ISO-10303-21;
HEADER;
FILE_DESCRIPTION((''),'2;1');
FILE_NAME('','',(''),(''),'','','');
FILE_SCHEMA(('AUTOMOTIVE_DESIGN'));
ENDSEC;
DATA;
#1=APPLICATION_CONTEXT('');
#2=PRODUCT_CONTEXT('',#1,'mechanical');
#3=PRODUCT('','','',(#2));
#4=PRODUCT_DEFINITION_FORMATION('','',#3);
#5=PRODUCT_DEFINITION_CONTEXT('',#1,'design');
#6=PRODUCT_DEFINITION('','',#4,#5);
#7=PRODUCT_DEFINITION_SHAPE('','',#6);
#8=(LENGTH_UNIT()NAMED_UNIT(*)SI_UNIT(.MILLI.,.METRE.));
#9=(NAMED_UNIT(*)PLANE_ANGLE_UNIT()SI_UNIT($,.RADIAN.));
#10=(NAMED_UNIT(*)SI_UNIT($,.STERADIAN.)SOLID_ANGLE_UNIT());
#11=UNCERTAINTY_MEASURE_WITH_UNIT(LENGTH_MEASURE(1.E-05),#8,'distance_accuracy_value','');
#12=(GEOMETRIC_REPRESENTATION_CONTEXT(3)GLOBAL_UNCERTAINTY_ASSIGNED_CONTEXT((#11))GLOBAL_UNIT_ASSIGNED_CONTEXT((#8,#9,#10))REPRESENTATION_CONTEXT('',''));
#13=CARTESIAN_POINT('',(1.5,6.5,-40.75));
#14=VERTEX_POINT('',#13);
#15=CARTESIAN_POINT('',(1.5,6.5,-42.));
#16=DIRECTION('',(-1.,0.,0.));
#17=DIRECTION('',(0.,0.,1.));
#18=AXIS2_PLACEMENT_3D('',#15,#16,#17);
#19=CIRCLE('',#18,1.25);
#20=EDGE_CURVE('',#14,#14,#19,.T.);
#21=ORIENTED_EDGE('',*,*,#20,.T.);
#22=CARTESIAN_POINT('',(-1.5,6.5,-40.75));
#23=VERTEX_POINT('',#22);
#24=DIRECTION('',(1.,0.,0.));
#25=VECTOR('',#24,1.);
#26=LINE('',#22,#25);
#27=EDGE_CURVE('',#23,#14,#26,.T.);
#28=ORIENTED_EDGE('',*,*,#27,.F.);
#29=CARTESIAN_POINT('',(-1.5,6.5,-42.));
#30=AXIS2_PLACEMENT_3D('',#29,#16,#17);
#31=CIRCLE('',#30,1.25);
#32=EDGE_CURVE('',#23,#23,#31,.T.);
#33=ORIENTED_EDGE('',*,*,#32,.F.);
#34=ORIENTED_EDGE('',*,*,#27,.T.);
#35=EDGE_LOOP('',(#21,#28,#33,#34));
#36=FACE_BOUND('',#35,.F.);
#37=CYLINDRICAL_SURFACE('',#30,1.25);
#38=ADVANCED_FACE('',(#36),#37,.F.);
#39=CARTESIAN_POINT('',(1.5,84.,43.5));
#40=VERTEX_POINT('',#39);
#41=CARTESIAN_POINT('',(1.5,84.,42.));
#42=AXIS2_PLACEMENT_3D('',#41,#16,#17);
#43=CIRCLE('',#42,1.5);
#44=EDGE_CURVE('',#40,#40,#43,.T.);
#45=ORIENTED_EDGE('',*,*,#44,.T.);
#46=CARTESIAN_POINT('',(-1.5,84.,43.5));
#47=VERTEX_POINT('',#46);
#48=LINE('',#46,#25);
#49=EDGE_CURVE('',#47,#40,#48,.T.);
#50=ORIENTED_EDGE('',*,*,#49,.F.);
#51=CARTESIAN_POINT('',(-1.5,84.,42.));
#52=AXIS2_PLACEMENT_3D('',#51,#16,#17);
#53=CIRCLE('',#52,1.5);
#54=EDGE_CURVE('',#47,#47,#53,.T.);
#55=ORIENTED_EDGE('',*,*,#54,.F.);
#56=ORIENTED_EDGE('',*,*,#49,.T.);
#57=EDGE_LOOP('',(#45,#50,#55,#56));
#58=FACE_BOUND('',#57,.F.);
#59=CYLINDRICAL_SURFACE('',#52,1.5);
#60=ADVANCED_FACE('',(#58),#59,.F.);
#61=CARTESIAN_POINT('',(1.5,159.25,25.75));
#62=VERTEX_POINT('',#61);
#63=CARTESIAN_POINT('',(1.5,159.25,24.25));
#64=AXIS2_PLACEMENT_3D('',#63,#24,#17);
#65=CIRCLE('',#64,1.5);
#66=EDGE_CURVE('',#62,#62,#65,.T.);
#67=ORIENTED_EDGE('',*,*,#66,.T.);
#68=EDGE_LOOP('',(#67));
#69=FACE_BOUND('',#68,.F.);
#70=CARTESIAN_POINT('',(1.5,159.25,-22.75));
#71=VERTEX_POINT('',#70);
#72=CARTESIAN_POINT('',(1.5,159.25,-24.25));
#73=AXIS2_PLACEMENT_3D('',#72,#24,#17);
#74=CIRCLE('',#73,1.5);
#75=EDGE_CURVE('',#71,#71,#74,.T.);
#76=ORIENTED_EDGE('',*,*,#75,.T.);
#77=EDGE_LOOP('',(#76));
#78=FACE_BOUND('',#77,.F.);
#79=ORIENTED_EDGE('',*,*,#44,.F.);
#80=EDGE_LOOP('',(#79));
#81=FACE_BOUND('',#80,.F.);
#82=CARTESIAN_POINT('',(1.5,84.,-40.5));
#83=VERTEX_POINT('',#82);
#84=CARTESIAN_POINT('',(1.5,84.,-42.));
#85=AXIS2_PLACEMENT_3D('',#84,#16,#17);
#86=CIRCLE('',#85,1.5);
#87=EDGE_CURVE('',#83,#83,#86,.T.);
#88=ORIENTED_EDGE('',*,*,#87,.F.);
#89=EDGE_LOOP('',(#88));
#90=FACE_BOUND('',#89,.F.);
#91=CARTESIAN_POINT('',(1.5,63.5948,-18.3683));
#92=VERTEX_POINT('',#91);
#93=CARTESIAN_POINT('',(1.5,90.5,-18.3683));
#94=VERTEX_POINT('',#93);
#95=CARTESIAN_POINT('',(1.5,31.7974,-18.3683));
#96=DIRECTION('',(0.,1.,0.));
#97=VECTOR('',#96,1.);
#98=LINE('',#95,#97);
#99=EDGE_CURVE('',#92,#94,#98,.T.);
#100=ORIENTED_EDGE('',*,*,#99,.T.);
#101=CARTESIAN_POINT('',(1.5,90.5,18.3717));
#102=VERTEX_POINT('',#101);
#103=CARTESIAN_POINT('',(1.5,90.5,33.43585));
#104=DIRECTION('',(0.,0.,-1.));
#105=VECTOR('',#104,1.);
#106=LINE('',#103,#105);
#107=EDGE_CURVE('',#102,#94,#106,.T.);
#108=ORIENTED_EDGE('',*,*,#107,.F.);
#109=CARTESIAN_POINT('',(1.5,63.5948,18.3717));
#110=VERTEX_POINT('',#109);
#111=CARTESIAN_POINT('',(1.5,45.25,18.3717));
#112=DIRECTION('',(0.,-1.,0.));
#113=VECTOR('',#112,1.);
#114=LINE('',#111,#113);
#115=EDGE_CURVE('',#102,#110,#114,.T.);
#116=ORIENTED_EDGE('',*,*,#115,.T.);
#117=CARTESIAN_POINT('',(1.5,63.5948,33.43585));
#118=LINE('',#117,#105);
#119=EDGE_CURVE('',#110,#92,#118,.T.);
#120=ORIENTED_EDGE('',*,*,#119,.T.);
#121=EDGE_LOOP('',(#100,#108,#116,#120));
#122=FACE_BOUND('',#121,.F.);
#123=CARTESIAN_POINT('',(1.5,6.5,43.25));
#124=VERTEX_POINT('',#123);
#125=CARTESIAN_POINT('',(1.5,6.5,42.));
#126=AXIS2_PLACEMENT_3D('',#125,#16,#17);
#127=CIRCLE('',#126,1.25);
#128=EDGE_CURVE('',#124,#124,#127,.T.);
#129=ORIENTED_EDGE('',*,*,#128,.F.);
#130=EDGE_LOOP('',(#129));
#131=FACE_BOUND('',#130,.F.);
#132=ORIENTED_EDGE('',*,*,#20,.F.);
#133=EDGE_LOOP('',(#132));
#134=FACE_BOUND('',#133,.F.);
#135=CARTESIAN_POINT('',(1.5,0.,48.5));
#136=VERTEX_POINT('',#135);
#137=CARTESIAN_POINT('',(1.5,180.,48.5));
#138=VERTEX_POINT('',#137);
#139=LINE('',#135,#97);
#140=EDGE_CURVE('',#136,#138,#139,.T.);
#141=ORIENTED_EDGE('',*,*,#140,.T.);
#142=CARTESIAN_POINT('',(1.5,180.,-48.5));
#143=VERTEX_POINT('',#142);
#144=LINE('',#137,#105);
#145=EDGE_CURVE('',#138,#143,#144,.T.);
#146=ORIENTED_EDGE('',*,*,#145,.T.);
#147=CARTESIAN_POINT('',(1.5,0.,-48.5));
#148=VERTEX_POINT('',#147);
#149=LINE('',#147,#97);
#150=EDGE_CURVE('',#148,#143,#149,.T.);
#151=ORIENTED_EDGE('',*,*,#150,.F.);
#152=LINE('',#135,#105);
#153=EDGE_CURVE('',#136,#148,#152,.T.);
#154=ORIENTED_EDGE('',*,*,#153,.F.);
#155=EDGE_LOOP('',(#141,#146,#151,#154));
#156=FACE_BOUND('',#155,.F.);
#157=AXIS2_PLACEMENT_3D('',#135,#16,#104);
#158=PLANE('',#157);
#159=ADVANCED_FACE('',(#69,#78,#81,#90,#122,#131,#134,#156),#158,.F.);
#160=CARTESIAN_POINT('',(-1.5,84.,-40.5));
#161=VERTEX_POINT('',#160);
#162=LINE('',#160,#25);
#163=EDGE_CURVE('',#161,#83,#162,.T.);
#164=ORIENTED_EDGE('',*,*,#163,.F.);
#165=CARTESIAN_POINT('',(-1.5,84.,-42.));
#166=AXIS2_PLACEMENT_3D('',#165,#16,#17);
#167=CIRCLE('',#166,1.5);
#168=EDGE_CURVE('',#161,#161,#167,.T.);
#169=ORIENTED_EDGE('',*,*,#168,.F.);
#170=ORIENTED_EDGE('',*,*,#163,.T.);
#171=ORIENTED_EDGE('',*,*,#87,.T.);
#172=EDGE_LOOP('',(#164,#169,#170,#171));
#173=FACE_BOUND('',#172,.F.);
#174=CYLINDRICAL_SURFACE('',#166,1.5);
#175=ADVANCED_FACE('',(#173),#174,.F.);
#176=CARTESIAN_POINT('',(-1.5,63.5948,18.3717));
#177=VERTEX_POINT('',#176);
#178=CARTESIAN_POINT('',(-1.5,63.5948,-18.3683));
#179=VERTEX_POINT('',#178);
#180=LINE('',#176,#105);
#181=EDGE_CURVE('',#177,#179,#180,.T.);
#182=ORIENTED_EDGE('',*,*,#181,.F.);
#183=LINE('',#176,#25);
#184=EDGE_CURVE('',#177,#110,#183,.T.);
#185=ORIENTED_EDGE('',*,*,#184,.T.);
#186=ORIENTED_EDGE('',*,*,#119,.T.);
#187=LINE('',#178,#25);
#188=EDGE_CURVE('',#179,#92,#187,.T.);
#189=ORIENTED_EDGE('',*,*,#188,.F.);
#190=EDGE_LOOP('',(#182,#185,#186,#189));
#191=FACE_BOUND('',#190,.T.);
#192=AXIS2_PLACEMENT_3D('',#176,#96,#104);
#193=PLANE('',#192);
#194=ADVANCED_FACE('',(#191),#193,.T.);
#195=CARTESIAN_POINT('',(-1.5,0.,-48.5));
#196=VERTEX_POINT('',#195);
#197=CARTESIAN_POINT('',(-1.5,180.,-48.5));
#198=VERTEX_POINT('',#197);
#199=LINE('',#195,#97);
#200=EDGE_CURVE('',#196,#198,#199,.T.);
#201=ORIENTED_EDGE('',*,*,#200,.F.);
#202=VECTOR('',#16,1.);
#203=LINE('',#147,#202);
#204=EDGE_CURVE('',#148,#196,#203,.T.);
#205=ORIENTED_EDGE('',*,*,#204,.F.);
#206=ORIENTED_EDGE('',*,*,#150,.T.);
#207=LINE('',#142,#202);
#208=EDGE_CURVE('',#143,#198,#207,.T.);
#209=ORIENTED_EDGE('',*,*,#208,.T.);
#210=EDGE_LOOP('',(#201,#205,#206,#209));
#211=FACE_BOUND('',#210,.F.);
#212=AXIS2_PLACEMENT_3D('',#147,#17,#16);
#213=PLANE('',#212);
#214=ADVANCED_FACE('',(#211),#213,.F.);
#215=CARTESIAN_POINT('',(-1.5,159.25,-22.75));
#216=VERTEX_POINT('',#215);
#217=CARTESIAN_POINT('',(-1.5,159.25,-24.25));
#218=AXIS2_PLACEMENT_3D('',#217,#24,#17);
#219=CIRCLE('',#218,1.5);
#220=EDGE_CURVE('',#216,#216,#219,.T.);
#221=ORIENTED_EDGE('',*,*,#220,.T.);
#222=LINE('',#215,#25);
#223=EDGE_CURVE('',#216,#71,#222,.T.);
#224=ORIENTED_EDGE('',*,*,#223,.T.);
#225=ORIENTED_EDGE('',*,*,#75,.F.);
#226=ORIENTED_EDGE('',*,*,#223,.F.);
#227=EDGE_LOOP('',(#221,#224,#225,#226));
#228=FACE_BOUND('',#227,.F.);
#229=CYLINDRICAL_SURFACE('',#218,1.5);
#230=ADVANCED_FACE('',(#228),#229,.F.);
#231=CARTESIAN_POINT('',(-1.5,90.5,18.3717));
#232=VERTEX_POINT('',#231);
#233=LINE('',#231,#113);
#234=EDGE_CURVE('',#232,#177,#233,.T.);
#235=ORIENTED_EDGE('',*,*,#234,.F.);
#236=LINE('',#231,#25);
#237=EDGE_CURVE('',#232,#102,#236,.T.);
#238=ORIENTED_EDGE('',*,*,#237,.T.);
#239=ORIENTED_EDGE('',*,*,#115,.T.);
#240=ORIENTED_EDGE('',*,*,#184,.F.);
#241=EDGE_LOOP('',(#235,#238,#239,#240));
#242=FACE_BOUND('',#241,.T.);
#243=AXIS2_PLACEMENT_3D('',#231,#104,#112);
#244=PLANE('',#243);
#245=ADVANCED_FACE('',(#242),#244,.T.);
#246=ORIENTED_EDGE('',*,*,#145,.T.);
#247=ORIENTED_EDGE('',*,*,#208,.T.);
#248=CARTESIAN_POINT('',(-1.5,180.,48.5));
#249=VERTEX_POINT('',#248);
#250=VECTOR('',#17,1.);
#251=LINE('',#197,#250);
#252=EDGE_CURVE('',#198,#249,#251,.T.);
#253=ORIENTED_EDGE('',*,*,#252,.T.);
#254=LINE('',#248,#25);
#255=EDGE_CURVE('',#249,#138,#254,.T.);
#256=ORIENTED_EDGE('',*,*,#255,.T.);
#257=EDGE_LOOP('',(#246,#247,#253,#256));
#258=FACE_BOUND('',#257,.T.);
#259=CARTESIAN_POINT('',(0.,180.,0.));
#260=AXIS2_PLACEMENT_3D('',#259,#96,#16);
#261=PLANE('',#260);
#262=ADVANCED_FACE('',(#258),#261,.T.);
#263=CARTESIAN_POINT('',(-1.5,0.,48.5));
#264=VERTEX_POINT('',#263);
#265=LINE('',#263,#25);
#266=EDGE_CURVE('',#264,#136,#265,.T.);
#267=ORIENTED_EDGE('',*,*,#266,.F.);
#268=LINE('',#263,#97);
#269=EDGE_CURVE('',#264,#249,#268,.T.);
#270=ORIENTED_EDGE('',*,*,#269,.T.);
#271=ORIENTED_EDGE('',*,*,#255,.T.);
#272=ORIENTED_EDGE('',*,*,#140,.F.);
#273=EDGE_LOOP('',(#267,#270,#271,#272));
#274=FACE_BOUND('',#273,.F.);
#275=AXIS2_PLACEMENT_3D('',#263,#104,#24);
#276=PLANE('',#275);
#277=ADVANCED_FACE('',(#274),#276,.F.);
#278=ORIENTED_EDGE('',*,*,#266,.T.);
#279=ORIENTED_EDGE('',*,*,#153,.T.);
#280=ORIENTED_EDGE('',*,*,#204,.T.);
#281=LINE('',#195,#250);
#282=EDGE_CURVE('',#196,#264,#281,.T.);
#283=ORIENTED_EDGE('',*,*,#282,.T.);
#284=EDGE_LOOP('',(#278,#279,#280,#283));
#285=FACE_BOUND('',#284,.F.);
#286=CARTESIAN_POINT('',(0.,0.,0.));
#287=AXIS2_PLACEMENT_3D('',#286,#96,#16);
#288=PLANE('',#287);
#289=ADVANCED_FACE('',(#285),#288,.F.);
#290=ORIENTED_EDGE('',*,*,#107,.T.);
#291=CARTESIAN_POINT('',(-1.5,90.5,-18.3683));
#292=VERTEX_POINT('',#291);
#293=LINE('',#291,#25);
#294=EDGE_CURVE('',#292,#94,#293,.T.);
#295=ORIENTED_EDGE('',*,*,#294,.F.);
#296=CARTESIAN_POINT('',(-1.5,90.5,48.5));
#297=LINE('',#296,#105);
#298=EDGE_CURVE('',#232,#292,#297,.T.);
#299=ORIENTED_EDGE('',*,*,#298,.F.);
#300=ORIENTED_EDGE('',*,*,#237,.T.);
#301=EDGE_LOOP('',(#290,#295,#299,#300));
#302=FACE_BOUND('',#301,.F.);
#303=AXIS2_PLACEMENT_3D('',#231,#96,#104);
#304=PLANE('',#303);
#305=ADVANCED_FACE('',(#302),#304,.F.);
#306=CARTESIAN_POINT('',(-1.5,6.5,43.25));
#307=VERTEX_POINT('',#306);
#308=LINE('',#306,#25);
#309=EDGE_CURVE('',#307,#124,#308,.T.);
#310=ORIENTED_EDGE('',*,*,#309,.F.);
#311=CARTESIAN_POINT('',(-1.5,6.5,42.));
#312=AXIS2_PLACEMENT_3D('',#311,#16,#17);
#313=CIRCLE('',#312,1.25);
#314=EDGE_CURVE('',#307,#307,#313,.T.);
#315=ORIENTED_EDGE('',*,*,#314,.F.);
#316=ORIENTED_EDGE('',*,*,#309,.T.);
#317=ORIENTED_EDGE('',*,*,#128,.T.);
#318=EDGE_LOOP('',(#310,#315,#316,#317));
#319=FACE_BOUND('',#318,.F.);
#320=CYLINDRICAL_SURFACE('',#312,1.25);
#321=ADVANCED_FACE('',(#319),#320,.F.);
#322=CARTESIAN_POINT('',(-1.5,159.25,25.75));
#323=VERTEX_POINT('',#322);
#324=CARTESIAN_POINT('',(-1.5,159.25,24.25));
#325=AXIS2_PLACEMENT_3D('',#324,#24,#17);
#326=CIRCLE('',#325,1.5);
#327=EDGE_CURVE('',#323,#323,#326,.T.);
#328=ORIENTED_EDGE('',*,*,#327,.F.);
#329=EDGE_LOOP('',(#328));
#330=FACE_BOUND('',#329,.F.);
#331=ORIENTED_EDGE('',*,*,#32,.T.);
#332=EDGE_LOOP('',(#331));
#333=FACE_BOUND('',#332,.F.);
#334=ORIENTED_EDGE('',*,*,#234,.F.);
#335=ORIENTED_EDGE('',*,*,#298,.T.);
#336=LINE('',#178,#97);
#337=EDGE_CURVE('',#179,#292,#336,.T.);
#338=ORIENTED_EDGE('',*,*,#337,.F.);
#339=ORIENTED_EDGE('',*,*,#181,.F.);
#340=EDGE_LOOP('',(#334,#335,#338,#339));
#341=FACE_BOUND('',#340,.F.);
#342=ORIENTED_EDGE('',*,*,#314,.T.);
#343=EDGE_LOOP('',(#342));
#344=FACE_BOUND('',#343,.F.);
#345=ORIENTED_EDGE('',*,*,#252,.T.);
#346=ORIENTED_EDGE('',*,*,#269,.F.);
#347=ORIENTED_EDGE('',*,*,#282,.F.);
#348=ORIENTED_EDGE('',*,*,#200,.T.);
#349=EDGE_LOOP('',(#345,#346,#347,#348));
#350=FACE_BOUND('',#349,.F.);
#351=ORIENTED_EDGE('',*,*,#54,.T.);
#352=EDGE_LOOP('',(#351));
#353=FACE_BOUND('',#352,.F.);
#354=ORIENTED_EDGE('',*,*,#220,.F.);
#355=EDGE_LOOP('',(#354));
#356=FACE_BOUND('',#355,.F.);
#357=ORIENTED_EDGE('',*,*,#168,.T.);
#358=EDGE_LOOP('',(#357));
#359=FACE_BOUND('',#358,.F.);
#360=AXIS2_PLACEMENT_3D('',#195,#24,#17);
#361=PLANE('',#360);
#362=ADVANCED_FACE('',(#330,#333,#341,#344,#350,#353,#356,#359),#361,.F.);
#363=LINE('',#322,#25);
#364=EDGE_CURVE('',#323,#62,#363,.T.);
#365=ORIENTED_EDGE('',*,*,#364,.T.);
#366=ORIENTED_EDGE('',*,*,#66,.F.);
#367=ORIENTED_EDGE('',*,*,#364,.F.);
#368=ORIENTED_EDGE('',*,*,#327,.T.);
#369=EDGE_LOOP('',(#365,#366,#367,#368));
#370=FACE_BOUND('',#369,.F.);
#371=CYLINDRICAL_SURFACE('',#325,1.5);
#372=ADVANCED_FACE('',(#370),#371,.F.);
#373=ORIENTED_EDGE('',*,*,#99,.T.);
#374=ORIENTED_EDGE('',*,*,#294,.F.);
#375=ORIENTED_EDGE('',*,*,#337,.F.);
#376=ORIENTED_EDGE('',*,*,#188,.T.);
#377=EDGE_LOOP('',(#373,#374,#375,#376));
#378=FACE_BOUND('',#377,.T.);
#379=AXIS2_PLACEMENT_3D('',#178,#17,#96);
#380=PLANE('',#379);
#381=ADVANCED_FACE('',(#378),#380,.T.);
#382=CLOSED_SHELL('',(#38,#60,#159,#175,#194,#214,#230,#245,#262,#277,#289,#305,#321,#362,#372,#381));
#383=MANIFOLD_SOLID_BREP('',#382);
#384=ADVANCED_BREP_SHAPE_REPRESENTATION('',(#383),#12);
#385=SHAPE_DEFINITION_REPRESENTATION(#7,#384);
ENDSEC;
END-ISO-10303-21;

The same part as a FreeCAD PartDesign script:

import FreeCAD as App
import Part
import Sketcher
Q = App.Units.Quantity


def add_polygon(sketch, points):
    """Adds a closed chain of lines whose ends are joined by coincident constraints."""
    first, n = sketch.GeometryCount, len(points)
    for a, b in zip(points, points[1:] + points[:1]):
        sketch.addGeometry(Part.LineSegment(App.Vector(*a, 0), App.Vector(*b, 0)), False)
    for i in range(n):
        sketch.addConstraint(Sketcher.Constraint("Coincident", first + i, 2, first + (i + 1) % n, 1))

doc = App.newDocument("Part")
body = doc.addObject("PartDesign::Body", "Body")

sketch1 = doc.addObject("Sketcher::SketchObject", "Sketch")
body.addObject(sketch1)
sketch1.AttachmentSupport = (doc.XZ_Plane, [""])
sketch1.MapMode = "FlatFace"
add_polygon(sketch1, [(1.5, 48.5), (1.5, -48.5), (-1.5, -48.5), (-1.5, 48.5)])
sketch1.addConstraint([
    Sketcher.Constraint("Vertical", 0),
    Sketcher.Constraint("Horizontal", 1),
    Sketcher.Constraint("Vertical", 2),
    Sketcher.Constraint("Horizontal", 3),
    Sketcher.Constraint("Symmetric", 0, 2, 2, 2, -1, 1),
    Sketcher.Constraint("DistanceX", 1, 2, 1, 1, Q("3 mm")),
    Sketcher.Constraint("DistanceY", 0, 2, 0, 1, Q("97 mm")),
])
pad1 = doc.addObject("PartDesign::Pad", "Pad")
body.addObject(pad1)
pad1.Profile = sketch1
pad1.Length = 180
pad1.Reversed = True

sketch2 = doc.addObject("Sketcher::SketchObject", "Sketch001")
body.addObject(sketch2)
sketch2.AttachmentSupport = (doc.YZ_Plane, [""])
sketch2.MapMode = "FlatFace"
sketch2.AttachmentOffset = App.Placement(App.Vector(0, 0, -1.5), App.Rotation())
add_polygon(sketch2, [(64, 18), (90, 18), (90, -18), (64, -18)])
sketch2.addConstraint([
    Sketcher.Constraint("Horizontal", 0),
    Sketcher.Constraint("Vertical", 1),
    Sketcher.Constraint("Horizontal", 2),
    Sketcher.Constraint("Vertical", 3),
    Sketcher.Constraint("DistanceY", 1, 2, 1, 1, Q("36.74 mm")),
    Sketcher.Constraint("DistanceX", -1, 1, 0, 2, Q("90.5 mm")),
    Sketcher.Constraint("DistanceX", 0, 1, 0, 2, Q("26.9052 mm")),
    Sketcher.Constraint("DistanceY", -1, 1, 0, 2, Q("18.3717 mm")),
])
pocket1 = doc.addObject("PartDesign::Pocket", "Pocket")
body.addObject(pocket1)
pocket1.Profile = sketch2
pocket1.Type = "ThroughAll"
pocket1.Reversed = True

sketch3 = doc.addObject("Sketcher::SketchObject", "Sketch002")
body.addObject(sketch3)
sketch3.AttachmentSupport = (doc.YZ_Plane, [""])
sketch3.MapMode = "FlatFace"
sketch3.AttachmentOffset = App.Placement(App.Vector(0, 0, -1.5), App.Rotation())
sketch3.addGeometry([
    Part.Circle(App.Vector(6.5, -42, 0), App.Vector(0, 0, 1), 1.2),
    Part.Circle(App.Vector(6.5, 42, 0), App.Vector(0, 0, 1), 1.2),
    Part.Circle(App.Vector(84, 42, 0), App.Vector(0, 0, 1), 1.5),
    Part.Circle(App.Vector(84, -42, 0), App.Vector(0, 0, 1), 1.5),
], False)
sketch3.addConstraint([
    Sketcher.Constraint("Equal", 0, 1),
    Sketcher.Constraint("Equal", 2, 3),
    Sketcher.Constraint("Symmetric", 0, 3, 1, 3, -1),
    Sketcher.Constraint("Symmetric", 2, 3, 3, 3, -1),
    Sketcher.Constraint("Horizontal", 1, 3, 2, 3),
    Sketcher.Constraint("Diameter", 2, Q("3 mm")),
    Sketcher.Constraint("Diameter", 0, Q("2.5 mm")),
    Sketcher.Constraint("DistanceY", 0, 3, -1, 1, Q("42 mm")),
    Sketcher.Constraint("DistanceX", -1, 1, 2, 3, Q("84 mm")),
    Sketcher.Constraint("DistanceX", -1, 1, 0, 3, Q("6.5 mm")),
])
pocket2 = doc.addObject("PartDesign::Pocket", "Pocket001")
body.addObject(pocket2)
pocket2.Profile = sketch3
pocket2.Type = "ThroughAll"
pocket2.Reversed = True

sketch4 = doc.addObject("Sketcher::SketchObject", "Sketch003")
body.addObject(sketch4)
sketch4.AttachmentSupport = (doc.YZ_Plane, [""])
sketch4.MapMode = "FlatFace"
sketch4.AttachmentOffset = App.Placement(App.Vector(0, 0, -1.5), App.Rotation())
sketch4.addGeometry([
    Part.Circle(App.Vector(159.2, -24.2, 0), App.Vector(0, 0, 1), 1.5),
    Part.Circle(App.Vector(159.2, 24.2, 0), App.Vector(0, 0, 1), 1.5),
], False)
sketch4.addConstraint([
    Sketcher.Constraint("Equal", 0, 1),
    Sketcher.Constraint("Symmetric", 0, 3, 1, 3, -1),
    Sketcher.Constraint("Diameter", 0, Q("3 mm")),
    Sketcher.Constraint("DistanceY", 0, 3, 1, 3, Q("48.5 mm")),
    Sketcher.Constraint("DistanceX", -1, 1, 0, 3, Q("159.25 mm")),
])
doc.recompute()
hole = doc.addObject("PartDesign::Hole", "Hole")
body.addObject(hole)
hole.Profile = sketch4
hole.ThreadType = "None"
hole.Diameter = 3
hole.DepthType = "ThroughAll"
hole.Reversed = True

doc.recompute()
